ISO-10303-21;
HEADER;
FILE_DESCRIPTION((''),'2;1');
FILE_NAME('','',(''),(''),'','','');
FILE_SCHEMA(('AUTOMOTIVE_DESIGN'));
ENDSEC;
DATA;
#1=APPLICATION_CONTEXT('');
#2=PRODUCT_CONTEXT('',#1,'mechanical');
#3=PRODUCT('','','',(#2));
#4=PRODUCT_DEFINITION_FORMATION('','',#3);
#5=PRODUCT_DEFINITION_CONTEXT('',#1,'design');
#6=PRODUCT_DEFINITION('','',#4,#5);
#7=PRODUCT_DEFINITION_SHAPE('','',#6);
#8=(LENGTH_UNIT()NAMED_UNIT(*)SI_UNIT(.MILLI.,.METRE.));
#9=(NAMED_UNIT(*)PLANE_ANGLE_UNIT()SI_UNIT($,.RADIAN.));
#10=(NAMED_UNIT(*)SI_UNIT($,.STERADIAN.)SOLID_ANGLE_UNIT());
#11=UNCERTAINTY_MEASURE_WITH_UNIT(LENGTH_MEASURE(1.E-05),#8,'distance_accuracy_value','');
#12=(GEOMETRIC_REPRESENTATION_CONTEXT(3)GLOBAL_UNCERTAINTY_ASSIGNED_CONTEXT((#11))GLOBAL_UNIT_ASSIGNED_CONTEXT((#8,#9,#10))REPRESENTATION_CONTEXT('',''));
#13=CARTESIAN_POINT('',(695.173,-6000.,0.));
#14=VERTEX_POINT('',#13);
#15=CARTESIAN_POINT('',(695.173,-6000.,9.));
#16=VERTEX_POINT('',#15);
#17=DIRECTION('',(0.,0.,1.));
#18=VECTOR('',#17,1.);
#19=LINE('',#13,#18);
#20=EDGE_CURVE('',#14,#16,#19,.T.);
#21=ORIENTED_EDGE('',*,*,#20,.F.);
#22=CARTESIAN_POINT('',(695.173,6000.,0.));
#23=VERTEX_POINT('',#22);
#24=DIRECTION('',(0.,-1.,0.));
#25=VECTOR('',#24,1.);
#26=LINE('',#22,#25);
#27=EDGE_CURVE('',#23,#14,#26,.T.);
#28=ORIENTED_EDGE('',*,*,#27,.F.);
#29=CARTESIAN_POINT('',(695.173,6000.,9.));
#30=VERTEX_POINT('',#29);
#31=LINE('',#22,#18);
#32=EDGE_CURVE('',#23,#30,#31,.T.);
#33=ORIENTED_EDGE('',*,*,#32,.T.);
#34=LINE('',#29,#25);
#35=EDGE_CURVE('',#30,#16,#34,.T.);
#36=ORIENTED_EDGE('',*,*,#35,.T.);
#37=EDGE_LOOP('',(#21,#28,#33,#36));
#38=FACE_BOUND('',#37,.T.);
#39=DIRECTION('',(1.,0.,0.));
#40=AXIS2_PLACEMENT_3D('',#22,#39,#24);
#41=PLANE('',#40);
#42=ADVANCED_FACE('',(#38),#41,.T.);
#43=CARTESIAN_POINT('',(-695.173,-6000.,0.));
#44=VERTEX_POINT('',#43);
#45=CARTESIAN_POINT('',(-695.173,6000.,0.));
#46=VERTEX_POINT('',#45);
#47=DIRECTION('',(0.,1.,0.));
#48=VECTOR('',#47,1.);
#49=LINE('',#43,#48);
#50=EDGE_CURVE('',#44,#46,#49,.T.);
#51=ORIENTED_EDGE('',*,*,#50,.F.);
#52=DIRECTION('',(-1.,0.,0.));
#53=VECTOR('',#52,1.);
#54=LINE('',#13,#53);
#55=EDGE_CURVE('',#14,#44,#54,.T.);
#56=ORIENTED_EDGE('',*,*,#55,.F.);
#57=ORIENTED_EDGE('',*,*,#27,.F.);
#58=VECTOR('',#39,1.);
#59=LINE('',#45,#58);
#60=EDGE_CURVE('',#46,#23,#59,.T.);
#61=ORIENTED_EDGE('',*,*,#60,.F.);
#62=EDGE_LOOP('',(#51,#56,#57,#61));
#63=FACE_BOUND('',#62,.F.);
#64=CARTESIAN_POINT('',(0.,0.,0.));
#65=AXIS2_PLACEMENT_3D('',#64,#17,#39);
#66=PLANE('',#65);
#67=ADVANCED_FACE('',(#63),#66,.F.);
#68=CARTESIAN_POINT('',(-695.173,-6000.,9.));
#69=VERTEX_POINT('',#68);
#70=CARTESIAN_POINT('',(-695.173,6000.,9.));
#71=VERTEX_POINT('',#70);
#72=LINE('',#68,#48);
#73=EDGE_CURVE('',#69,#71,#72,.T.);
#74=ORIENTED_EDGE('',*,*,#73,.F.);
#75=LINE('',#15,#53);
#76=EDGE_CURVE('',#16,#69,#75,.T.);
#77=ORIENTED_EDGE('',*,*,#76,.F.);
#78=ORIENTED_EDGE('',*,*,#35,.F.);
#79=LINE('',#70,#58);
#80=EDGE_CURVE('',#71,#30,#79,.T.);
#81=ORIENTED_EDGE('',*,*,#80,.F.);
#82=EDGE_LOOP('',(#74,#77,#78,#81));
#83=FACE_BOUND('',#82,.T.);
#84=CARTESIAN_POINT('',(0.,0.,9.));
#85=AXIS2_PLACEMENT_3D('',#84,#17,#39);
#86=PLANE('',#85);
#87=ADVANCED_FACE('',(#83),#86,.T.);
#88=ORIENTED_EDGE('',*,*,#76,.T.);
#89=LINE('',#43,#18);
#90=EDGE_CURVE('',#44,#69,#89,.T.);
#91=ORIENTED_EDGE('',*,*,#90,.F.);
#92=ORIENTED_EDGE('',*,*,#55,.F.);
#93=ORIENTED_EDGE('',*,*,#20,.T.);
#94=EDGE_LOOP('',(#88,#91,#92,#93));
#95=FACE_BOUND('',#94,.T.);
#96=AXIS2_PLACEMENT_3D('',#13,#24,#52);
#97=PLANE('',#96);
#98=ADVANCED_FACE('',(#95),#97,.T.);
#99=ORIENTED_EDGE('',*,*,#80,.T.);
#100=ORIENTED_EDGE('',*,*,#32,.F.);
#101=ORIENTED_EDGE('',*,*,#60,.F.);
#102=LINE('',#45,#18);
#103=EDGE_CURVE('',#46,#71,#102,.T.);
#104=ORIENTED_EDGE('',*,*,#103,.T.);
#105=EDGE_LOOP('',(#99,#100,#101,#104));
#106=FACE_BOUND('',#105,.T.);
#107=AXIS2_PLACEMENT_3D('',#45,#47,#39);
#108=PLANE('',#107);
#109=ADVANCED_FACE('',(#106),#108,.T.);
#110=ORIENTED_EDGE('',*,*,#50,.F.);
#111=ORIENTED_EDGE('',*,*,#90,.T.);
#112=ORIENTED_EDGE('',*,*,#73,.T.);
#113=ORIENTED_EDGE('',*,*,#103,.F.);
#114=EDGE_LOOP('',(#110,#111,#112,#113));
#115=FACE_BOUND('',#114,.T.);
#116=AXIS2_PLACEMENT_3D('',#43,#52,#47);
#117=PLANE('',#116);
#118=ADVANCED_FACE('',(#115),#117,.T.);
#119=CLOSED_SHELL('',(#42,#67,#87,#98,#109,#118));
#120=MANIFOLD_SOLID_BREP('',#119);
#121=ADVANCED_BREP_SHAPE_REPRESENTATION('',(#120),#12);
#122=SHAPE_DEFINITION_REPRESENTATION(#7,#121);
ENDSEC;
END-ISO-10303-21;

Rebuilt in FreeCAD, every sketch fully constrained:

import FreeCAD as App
import Part
import Sketcher

doc = App.newDocument("Part")
body = doc.addObject("PartDesign::Body", "Body")

# Sketch on XY plane
sketch1 = doc.addObject("Sketcher::SketchObject", "Sketch")
body.addObject(sketch1)
sketch1.AttachmentSupport = (doc.XY_Plane, [""])
sketch1.MapMode = "FlatFace"
sketch1.addGeometry([
    Part.LineSegment(App.Vector(695, 6000, 0), App.Vector(-695, 6000, 0)),
    Part.LineSegment(App.Vector(-695, 6000, 0), App.Vector(-695, -6000, 0)),
    Part.LineSegment(App.Vector(-695, -6000, 0), App.Vector(695, -6000, 0)),
    Part.LineSegment(App.Vector(695, -6000, 0), App.Vector(695, 6000, 0)),
], False)
sketch1.addConstraint([
    Sketcher.Constraint("Coincident", 0, 2, 1, 1),
    Sketcher.Constraint("Coincident", 1, 2, 2, 1),
    Sketcher.Constraint("Coincident", 2, 2, 3, 1),
    Sketcher.Constraint("Coincident", 3, 2, 0, 1),
    Sketcher.Constraint("Horizontal", 0),
    Sketcher.Constraint("Vertical", 1),
    Sketcher.Constraint("Horizontal", 2),
    Sketcher.Constraint("Vertical", 3),
    Sketcher.Constraint("Symmetric", 0, 2, 2, 2, -1, 1),
    Sketcher.Constraint("DistanceY", 1, 2, 1, 1, 12000.0),
    Sketcher.Constraint("DistanceX", 0, 2, 0, 1, 1390.346),
])
pad1 = doc.addObject("PartDesign::Pad", "Pad")
body.addObject(pad1)
pad1.Profile = sketch1
pad1.Length = 9

doc.recompute()
